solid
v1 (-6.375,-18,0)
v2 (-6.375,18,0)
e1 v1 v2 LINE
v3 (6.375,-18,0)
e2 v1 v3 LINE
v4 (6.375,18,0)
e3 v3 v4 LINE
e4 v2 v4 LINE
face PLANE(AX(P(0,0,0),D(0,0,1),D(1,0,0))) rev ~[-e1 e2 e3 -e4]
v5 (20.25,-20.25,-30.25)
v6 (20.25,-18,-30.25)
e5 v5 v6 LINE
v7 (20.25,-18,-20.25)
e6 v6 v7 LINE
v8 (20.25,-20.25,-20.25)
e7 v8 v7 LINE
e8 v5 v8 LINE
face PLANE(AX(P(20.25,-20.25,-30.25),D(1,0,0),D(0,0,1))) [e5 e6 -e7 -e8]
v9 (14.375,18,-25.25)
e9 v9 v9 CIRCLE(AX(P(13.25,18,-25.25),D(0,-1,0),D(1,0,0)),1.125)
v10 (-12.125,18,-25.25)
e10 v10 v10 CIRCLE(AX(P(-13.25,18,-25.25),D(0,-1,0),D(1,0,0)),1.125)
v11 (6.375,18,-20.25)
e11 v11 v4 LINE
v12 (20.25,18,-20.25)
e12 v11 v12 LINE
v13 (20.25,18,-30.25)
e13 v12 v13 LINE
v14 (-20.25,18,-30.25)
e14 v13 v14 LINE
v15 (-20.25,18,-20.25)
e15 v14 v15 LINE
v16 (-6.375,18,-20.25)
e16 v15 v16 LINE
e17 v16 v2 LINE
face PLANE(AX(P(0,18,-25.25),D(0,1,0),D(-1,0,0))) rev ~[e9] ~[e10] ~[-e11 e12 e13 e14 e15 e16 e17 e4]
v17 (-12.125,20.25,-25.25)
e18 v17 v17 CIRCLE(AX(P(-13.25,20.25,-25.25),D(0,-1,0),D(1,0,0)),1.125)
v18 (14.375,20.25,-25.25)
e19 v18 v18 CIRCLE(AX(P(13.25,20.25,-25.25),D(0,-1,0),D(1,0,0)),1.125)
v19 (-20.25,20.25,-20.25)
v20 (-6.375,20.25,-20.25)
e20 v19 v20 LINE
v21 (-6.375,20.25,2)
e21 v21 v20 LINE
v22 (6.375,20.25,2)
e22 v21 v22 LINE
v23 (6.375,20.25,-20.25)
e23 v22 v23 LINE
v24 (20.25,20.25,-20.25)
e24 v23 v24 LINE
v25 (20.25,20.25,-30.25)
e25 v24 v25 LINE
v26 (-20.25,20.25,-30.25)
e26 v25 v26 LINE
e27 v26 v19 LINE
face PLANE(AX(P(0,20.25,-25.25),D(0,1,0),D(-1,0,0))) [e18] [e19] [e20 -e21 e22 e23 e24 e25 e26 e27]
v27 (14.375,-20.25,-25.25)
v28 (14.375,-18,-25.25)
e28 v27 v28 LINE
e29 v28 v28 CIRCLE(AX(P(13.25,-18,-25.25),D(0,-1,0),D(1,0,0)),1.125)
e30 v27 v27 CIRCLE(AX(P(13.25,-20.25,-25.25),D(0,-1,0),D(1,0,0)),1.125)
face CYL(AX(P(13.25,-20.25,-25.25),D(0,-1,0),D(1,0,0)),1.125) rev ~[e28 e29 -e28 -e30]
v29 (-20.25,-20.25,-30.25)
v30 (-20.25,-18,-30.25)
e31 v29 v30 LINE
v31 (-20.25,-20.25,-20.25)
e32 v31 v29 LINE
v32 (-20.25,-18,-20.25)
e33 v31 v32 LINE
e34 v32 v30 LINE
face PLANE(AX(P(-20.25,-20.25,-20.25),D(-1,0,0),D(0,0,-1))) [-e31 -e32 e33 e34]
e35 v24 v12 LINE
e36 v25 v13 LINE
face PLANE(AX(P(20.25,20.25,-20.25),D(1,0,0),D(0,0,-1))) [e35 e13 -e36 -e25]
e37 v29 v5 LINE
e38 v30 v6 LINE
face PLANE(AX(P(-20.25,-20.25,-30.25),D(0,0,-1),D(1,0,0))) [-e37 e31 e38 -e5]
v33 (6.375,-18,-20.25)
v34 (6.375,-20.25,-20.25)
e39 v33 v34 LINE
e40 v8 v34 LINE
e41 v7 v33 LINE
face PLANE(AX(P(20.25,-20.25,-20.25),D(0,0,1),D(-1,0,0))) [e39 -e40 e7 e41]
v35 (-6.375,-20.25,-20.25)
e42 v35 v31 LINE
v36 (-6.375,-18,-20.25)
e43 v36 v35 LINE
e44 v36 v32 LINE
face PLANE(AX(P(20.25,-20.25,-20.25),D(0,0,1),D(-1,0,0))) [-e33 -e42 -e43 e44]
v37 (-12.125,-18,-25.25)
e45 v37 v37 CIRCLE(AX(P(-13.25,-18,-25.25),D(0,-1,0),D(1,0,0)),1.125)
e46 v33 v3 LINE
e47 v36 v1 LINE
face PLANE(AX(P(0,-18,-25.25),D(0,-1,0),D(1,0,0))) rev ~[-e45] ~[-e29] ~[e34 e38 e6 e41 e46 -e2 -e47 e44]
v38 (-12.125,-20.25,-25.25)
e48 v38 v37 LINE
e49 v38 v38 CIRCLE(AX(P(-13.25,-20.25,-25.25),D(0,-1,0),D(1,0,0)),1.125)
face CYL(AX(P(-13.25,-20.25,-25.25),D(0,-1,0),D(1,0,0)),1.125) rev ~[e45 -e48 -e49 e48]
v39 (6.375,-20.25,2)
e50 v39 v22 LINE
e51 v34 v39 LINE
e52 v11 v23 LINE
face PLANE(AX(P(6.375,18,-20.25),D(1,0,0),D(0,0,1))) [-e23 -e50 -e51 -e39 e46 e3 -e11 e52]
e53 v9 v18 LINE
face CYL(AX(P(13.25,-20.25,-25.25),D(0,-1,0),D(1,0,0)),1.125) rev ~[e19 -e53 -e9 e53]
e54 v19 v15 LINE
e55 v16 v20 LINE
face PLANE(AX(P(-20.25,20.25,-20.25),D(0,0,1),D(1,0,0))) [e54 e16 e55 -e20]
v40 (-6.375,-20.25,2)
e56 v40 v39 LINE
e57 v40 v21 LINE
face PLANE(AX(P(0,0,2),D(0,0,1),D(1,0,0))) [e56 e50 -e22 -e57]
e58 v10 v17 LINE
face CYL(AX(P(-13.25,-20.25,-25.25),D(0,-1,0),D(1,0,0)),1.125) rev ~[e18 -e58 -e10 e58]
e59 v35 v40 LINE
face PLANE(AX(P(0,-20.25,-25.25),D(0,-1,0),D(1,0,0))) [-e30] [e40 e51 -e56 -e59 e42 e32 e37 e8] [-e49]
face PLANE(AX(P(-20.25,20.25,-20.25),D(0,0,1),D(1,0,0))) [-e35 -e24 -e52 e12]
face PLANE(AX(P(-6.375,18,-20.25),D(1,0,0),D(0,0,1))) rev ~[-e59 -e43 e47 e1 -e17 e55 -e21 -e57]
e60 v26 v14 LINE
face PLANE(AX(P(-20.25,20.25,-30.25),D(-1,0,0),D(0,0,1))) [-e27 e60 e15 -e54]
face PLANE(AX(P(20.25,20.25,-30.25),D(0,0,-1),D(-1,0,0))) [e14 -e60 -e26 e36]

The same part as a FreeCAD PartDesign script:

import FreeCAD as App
import Part
import Sketcher

V = App.Vector
Q = App.Units.Quantity


def add_polygon(sketch, points):
    """Adds a closed chain of lines whose ends are joined by coincident constraints."""
    first, n = sketch.GeometryCount, len(points)
    for a, b in zip(points, points[1:] + points[:1]):
        sketch.addGeometry(Part.LineSegment(App.Vector(*a, 0), App.Vector(*b, 0)), False)
    for i in range(n):
        sketch.addConstraint(Sketcher.Constraint("Coincident", first + i, 2, first + (i + 1) % n, 1))

doc = App.newDocument("Part")
params = doc.addObject("Spreadsheet::Sheet", "Params")
for row, (alias, value) in enumerate([
    ("sketch1_height", "40.5 mm"),
    ("sketch1_width", "12.75 mm"),
    ("pad1_length", "2 mm"),
    ("sketch2_width", "12.75 mm"),
    ("sketch2_height", "20.25 mm"),
    ("pad2_length", "2.25 mm"),
    ("sketch3_width", "12.75 mm"),
    ("sketch3_height", "20.25 mm"),
    ("pad3_length", "2.25 mm"),
    ("sketch4_height", "10 mm"),
    ("sketch4_width", "40.5 mm"),
    ("pad4_length", "2.25 mm"),
    ("sketch5_height", "10 mm"),
    ("sketch5_width", "40.5 mm"),
    ("pad5_length", "2.25 mm"),
    ("sketch6_diameter", "2.25 mm"),
], start=1):
    params.set(f"A{row}", alias)
    params.set(f"B{row}", "=" + value)
    params.setAlias(f"B{row}", alias)

body = doc.addObject("PartDesign::Body", "Body")

# Sketch on XY plane
sketch1 = body.newObject("Sketcher::SketchObject", "Sketch")
sketch1.AttachmentSupport = (doc.getObject("XY_Plane"), [""])
sketch1.MapMode = "FlatFace"
add_polygon(sketch1, [(-6, 20), (-6, -20), (6, -20), (6, 20)])  # lines 0-3
sketch1.addConstraint([
    Sketcher.Constraint("Vertical", 0),
    Sketcher.Constraint("Horizontal", 1),
    Sketcher.Constraint("Vertical", 2),
    Sketcher.Constraint("Horizontal", 3),
    Sketcher.Constraint("Symmetric", 0, 2, 2, 2, -1, 1),
    Sketcher.Constraint("DistanceY", 0, 2, 0, 1, Q("40.5 mm")),
    Sketcher.Constraint("DistanceX", 1, 1, 1, 2, Q("12.75 mm")),
])
sketch1.setExpression("Constraints[9]", "Params.sketch1_height")
sketch1.setExpression("Constraints[10]", "Params.sketch1_width")
pad1 = body.newObject("PartDesign::Pad", "Pad")
pad1.Profile = sketch1
pad1.setExpression("Length", "Params.pad1_length")

# Sketch on XZ plane
sketch2 = body.newObject("Sketcher::SketchObject", "Sketch001")
sketch2.AttachmentSupport = (doc.getObject("XZ_Plane"), [""])
sketch2.MapMode = "FlatFace"
sketch2.AttachmentOffset = App.Placement(V(0, 0, 18), App.Rotation())
add_polygon(sketch2, [(-6, 0), (-6, -20), (6, -20), (6, 0)])  # lines 0-3
sketch2.addConstraint([
    Sketcher.Constraint("Vertical", 0),
    Sketcher.Constraint("Horizontal", 1),
    Sketcher.Constraint("Vertical", 2),
    Sketcher.Constraint("Horizontal", 3),
    Sketcher.Constraint("Symmetric", 2, 2, 3, 2, -1, 1),
    Sketcher.Constraint("DistanceX", 1, 1, 1, 2, Q("12.75 mm")),
    Sketcher.Constraint("DistanceY", 0, 2, 0, 1, Q("20.25 mm")),
])
sketch2.setExpression("Constraints[9]", "Params.sketch2_width")
sketch2.setExpression("Constraints[10]", "Params.sketch2_height")
pad2 = body.newObject("PartDesign::Pad", "Pad001")
pad2.Profile = sketch2
pad2.setExpression("Length", "Params.pad2_length")

# Sketch on XZ plane
sketch3 = body.newObject("Sketcher::SketchObject", "Sketch002")
sketch3.AttachmentSupport = (doc.getObject("XZ_Plane"), [""])
sketch3.MapMode = "FlatFace"
sketch3.AttachmentOffset = App.Placement(V(0, 0, -18), App.Rotation())
add_polygon(sketch3, [(-6, 0), (-6, -20), (6, -20), (6, 0)])  # lines 0-3
sketch3.addConstraint([
    Sketcher.Constraint("Vertical", 0),
    Sketcher.Constraint("Horizontal", 1),
    Sketcher.Constraint("Vertical", 2),
    Sketcher.Constraint("Horizontal", 3),
    Sketcher.Constraint("Symmetric", 2, 2, 3, 2, -1, 1),
    Sketcher.Constraint("DistanceX", 1, 1, 1, 2, Q("12.75 mm")),
    Sketcher.Constraint("DistanceY", 0, 2, 0, 1, Q("20.25 mm")),
])
sketch3.setExpression("Constraints[9]", "Params.sketch3_width")
sketch3.setExpression("Constraints[10]", "Params.sketch3_height")
pad3 = body.newObject("PartDesign::Pad", "Pad002")
pad3.Profile = sketch3
pad3.setExpression("Length", "Params.pad3_length")
pad3.Reversed = True

# Sketch on XZ plane
sketch4 = body.newObject("Sketcher::SketchObject", "Sketch003")
sketch4.AttachmentSupport = (doc.getObject("XZ_Plane"), [""])
sketch4.MapMode = "FlatFace"
sketch4.AttachmentOffset = App.Placement(V(0, 0, -20.25), App.Rotation())
add_polygon(sketch4, [(20, -20), (20, -30), (-20, -30), (-20, -20)])  # lines 0-3
sketch4.addConstraint([
    Sketcher.Constraint("Vertical", 0),
    Sketcher.Constraint("Horizontal", 1),
    Sketcher.Constraint("Vertical", 2),
    Sketcher.Constraint("Horizontal", 3),
    Sketcher.Constraint("DistanceY", 0, 2, 0, 1, Q("10 mm")),
    Sketcher.Constraint("DistanceX", 1, 2, 1, 1, Q("40.5 mm")),
    Sketcher.Constraint("DistanceX", -1, 1, 0, 2, Q("20.25 mm")),
    Sketcher.Constraint("DistanceY", 0, 2, -1, 1, Q("30.25 mm")),
])
sketch4.setExpression("Constraints[8]", "Params.sketch4_height")
sketch4.setExpression("Constraints[9]", "Params.sketch4_width")
pad4 = body.newObject("PartDesign::Pad", "Pad003")
pad4.Profile = sketch4
pad4.setExpression("Length", "Params.pad4_length")

# Sketch on XZ plane
sketch5 = body.newObject("Sketcher::SketchObject", "Sketch004")
sketch5.AttachmentSupport = (doc.getObject("XZ_Plane"), [""])
sketch5.MapMode = "FlatFace"
sketch5.AttachmentOffset = App.Placement(V(0, 0, 20.25), App.Rotation())
add_polygon(sketch5, [(-20, -20), (-20, -30), (20, -30), (20, -20)])  # lines 0-3
sketch5.addConstraint([
    Sketcher.Constraint("Vertical", 0),
    Sketcher.Constraint("Horizontal", 1),
    Sketcher.Constraint("Vertical", 2),
    Sketcher.Constraint("Horizontal", 3),
    Sketcher.Constraint("DistanceY", 0, 2, 0, 1, Q("10 mm")),
    Sketcher.Constraint("DistanceX", 1, 1, 1, 2, Q("40.5 mm")),
    Sketcher.Constraint("DistanceX", 0, 2, -1, 1, Q("20.25 mm")),
    Sketcher.Constraint("DistanceY", 0, 2, -1, 1, Q("30.25 mm")),
])
sketch5.setExpression("Constraints[8]", "Params.sketch5_height")
sketch5.setExpression("Constraints[9]", "Params.sketch5_width")
pad5 = body.newObject("PartDesign::Pad", "Pad004")
pad5.Profile = sketch5
pad5.setExpression("Length", "Params.pad5_length")
pad5.Reversed = True

# Sketch on XZ plane
sketch6 = body.newObject("Sketcher::SketchObject", "Sketch005")
sketch6.AttachmentSupport = (doc.getObject("XZ_Plane"), [""])
sketch6.MapMode = "FlatFace"
sketch6.AttachmentOffset = App.Placement(V(0, 0, 20.25), App.Rotation())
sketch6.addGeometry([
    Part.Circle(V(-13.2, -25.2, 0), V(0, 0, 1), 1.1),
    Part.Circle(V(13.2, -25.2, 0), V(0, 0, 1), 1.1),
], False)
sketch6.addConstraint([
    Sketcher.Constraint("Equal", 0, 1),
    Sketcher.Constraint("Symmetric", 0, 3, 1, 3, -2),
    Sketcher.Constraint("Diameter", 0, Q("2.25 mm")),
    Sketcher.Constraint("DistanceX", 0, 3, 1, 3, Q("26.5 mm")),
    Sketcher.Constraint("DistanceY", 0, 3, -1, 1, Q("25.25 mm")),
])
sketch6.setExpression("Constraints[2]", "Params.sketch6_diameter")
pocket1 = body.newObject("PartDesign::Pocket", "Pocket")
pocket1.Profile = sketch6
pocket1.Type = "ThroughAll"

doc.recompute()
